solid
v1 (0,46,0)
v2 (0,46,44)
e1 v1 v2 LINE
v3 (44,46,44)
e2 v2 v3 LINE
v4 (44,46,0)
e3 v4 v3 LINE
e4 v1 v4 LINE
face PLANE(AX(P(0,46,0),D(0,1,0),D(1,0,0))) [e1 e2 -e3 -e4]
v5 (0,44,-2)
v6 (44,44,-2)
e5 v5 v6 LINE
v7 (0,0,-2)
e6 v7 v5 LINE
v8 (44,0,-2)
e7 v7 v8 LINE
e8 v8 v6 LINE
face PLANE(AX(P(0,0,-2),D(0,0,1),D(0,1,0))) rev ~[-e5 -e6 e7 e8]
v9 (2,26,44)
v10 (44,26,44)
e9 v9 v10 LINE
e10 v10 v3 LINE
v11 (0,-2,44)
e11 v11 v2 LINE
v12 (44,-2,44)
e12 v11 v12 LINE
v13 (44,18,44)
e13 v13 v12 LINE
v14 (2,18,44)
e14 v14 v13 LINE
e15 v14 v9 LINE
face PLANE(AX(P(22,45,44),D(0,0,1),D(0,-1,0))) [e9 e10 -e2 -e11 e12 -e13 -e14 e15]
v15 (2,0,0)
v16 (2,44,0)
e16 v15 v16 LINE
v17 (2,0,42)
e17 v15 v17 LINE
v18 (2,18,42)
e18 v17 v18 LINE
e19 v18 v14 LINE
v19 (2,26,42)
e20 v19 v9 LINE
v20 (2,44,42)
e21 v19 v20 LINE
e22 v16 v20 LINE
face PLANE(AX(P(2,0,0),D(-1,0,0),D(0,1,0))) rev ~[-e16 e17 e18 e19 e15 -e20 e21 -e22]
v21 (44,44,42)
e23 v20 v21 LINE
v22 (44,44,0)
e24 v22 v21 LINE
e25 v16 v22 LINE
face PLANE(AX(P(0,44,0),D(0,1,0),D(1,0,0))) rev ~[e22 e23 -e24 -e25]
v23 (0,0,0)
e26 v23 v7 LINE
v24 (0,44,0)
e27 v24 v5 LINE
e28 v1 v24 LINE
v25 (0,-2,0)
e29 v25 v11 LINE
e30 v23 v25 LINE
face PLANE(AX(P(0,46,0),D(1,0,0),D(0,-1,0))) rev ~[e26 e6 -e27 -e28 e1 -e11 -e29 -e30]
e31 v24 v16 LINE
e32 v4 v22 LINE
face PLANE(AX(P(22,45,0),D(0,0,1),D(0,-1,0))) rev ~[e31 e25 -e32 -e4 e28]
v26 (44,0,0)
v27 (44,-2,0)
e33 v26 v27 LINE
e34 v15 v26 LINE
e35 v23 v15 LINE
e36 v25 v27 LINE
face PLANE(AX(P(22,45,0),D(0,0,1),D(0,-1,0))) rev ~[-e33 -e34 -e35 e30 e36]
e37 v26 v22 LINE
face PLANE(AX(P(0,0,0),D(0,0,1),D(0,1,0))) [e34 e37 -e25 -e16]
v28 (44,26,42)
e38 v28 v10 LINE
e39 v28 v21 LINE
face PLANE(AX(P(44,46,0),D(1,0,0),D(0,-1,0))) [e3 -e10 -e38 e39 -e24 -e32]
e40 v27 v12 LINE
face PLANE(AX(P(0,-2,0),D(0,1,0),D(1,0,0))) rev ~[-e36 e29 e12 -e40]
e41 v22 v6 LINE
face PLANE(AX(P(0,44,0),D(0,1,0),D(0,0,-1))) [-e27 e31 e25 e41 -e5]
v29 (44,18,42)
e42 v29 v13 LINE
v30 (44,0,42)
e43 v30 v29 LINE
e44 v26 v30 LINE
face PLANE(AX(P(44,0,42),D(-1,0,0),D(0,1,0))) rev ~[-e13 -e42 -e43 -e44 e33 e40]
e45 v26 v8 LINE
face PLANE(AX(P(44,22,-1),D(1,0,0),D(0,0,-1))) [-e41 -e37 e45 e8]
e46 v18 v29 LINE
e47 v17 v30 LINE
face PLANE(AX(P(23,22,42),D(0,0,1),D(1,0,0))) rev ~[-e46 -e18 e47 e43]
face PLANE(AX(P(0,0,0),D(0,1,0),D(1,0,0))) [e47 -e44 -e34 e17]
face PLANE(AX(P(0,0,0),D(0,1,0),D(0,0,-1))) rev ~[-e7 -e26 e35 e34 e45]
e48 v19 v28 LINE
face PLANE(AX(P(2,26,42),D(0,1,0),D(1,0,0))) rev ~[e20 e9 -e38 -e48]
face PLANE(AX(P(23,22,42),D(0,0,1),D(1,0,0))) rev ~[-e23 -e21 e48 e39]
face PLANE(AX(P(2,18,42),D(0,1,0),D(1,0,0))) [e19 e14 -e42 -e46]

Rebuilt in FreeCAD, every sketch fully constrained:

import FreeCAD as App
import Part
import Sketcher
Q = App.Units.Quantity

doc = App.newDocument("Part")
body = doc.addObject("PartDesign::Body", "Body")

# Sketch on XY plane
sketch1 = body.newObject("Sketcher::SketchObject", "Sketch")
sketch1.AttachmentSupport = (doc.getObject("XY_Plane"), [""])
sketch1.MapMode = "FlatFace"
sketch1.AttachmentOffset = App.Placement(App.Vector(0, 0, 42), App.Rotation())
sketch1.addGeometry(Part.LineSegment(App.Vector(2, 26, 0), App.Vector(2, 18, 0)), False)
sketch1.addGeometry(Part.LineSegment(App.Vector(2, 18, 0), App.Vector(44, 18, 0)), False)
sketch1.addGeometry(Part.LineSegment(App.Vector(44, 18, 0), App.Vector(44, 26, 0)), False)
sketch1.addGeometry(Part.LineSegment(App.Vector(44, 26, 0), App.Vector(2, 26, 0)), False)
sketch1.addConstraint(Sketcher.Constraint("Coincident", 0, 2, 1, 1))
sketch1.addConstraint(Sketcher.Constraint("Coincident", 1, 2, 2, 1))
sketch1.addConstraint(Sketcher.Constraint("Coincident", 2, 2, 3, 1))
sketch1.addConstraint(Sketcher.Constraint("Coincident", 3, 2, 0, 1))
sketch1.addConstraint(Sketcher.Constraint("Vertical", 0))
sketch1.addConstraint(Sketcher.Constraint("Horizontal", 1))
sketch1.addConstraint(Sketcher.Constraint("Vertical", 2))
sketch1.addConstraint(Sketcher.Constraint("Horizontal", 3))
sketch1.addConstraint(Sketcher.Constraint("DistanceX", 1, 1, 1, 2, Q("42 mm")))
sketch1.addConstraint(Sketcher.Constraint("DistanceY", 0, 2, 0, 1, Q("8 mm")))
sketch1.addConstraint(Sketcher.Constraint("DistanceX", -1, 1, 0, 2, Q("2 mm")))
sketch1.addConstraint(Sketcher.Constraint("DistanceY", -1, 1, 0, 2, Q("18 mm")))
pad1 = body.newObject("PartDesign::Pad", "Pad")
pad1.Profile = sketch1
pad1.Length = 2
body2 = doc.addObject("PartDesign::Body", "Body001")
body2.AllowCompound = True

# Sketch on XY plane
sketch2 = body2.newObject("Sketcher::SketchObject", "Sketch001")
sketch2.AttachmentSupport = (doc.getObject("XY_Plane001"), [""])
sketch2.MapMode = "FlatFace"
sketch2.AttachmentOffset = App.Placement(App.Vector(0, 0, 42), App.Rotation())
sketch2.addGeometry(Part.LineSegment(App.Vector(2, 44, 0), App.Vector(2, 0, 0)), False)
sketch2.addGeometry(Part.LineSegment(App.Vector(2, 0, 0), App.Vector(44, 0, 0)), False)
sketch2.addGeometry(Part.LineSegment(App.Vector(44, 0, 0), App.Vector(44, 44, 0)), False)
sketch2.addGeometry(Part.LineSegment(App.Vector(44, 44, 0), App.Vector(2, 44, 0)), False)
sketch2.addConstraint(Sketcher.Constraint("Coincident", 0, 2, 1, 1))
sketch2.addConstraint(Sketcher.Constraint("Coincident", 1, 2, 2, 1))
sketch2.addConstraint(Sketcher.Constraint("Coincident", 2, 2, 3, 1))
sketch2.addConstraint(Sketcher.Constraint("Coincident", 3, 2, 0, 1))
sketch2.addConstraint(Sketcher.Constraint("Vertical", 0))
sketch2.addConstraint(Sketcher.Constraint("Horizontal", 1))
sketch2.addConstraint(Sketcher.Constraint("Vertical", 2))
sketch2.addConstraint(Sketcher.Constraint("Horizontal", 3))
sketch2.addConstraint(Sketcher.Constraint("PointOnObject", 0, 2, -1))
sketch2.addConstraint(Sketcher.Constraint("DistanceX", 1, 1, 1, 2, Q("42 mm")))
sketch2.addConstraint(Sketcher.Constraint("DistanceY", 0, 2, 0, 1, Q("44 mm")))
sketch2.addConstraint(Sketcher.Constraint("DistanceX", -1, 1, 0, 2, Q("2 mm")))
pad2 = body2.newObject("PartDesign::Pad", "Pad001")
pad2.Profile = sketch2
pad2.Length = 2
doc.recompute()

boolean = body2.newObject("PartDesign::Boolean", "Boolean")
boolean.Type = "Cut"
boolean.addObjects([body])
body3 = doc.addObject("PartDesign::Body", "Body002")

# Sketch on XY plane
sketch3 = body3.newObject("Sketcher::SketchObject", "Sketch002")
sketch3.AttachmentSupport = (doc.getObject("XY_Plane002"), [""])
sketch3.MapMode = "FlatFace"
sketch3.addGeometry(Part.LineSegment(App.Vector(44, 0, 0), App.Vector(0, 0, 0)), False)
sketch3.addGeometry(Part.LineSegment(App.Vector(0, 0, 0), App.Vector(0, -2, 0)), False)
sketch3.addGeometry(Part.LineSegment(App.Vector(0, -2, 0), App.Vector(44, -2, 0)), False)
sketch3.addGeometry(Part.LineSegment(App.Vector(44, -2, 0), App.Vector(44, 0, 0)), False)
sketch3.addConstraint(Sketcher.Constraint("Coincident", 0, 2, 1, 1))
sketch3.addConstraint(Sketcher.Constraint("Coincident", 1, 2, 2, 1))
sketch3.addConstraint(Sketcher.Constraint("Coincident", 2, 2, 3, 1))
sketch3.addConstraint(Sketcher.Constraint("Coincident", 3, 2, 0, 1))
sketch3.addConstraint(Sketcher.Constraint("Horizontal", 0))
sketch3.addConstraint(Sketcher.Constraint("Vertical", 1))
sketch3.addConstraint(Sketcher.Constraint("Horizontal", 2))
sketch3.addConstraint(Sketcher.Constraint("Vertical", 3))
sketch3.addConstraint(Sketcher.Constraint("Coincident", 0, 2, -1, 1))
sketch3.addConstraint(Sketcher.Constraint("DistanceX", 0, 2, 0, 1, Q("44 mm")))
sketch3.addConstraint(Sketcher.Constraint("DistanceY", 1, 2, 1, 1, Q("2 mm")))
pad3 = body3.newObject("PartDesign::Pad", "Pad002")
pad3.Profile = sketch3
pad3.Length = 44
body4 = doc.addObject("PartDesign::Body", "Body003")

# Sketch on XY plane
sketch4 = body4.newObject("Sketcher::SketchObject", "Sketch003")
sketch4.AttachmentSupport = (doc.getObject("XY_Plane003"), [""])
sketch4.MapMode = "FlatFace"
sketch4.addGeometry(Part.LineSegment(App.Vector(44, 46, 0), App.Vector(0, 46, 0)), False)
sketch4.addGeometry(Part.LineSegment(App.Vector(0, 46, 0), App.Vector(0, 44, 0)), False)
sketch4.addGeometry(Part.LineSegment(App.Vector(0, 44, 0), App.Vector(44, 44, 0)), False)
sketch4.addGeometry(Part.LineSegment(App.Vector(44, 44, 0), App.Vector(44, 46, 0)), False)
sketch4.addConstraint(Sketcher.Constraint("Coincident", 0, 2, 1, 1))
sketch4.addConstraint(Sketcher.Constraint("Coincident", 1, 2, 2, 1))
sketch4.addConstraint(Sketcher.Constraint("Coincident", 2, 2, 3, 1))
sketch4.addConstraint(Sketcher.Constraint("Coincident", 3, 2, 0, 1))
sketch4.addConstraint(Sketcher.Constraint("Horizontal", 0))
sketch4.addConstraint(Sketcher.Constraint("Vertical", 1))
sketch4.addConstraint(Sketcher.Constraint("Horizontal", 2))
sketch4.addConstraint(Sketcher.Constraint("Vertical", 3))
sketch4.addConstraint(Sketcher.Constraint("PointOnObject", 0, 2, -2))
sketch4.addConstraint(Sketcher.Constraint("DistanceX", 0, 2, 0, 1, Q("44 mm")))
sketch4.addConstraint(Sketcher.Constraint("DistanceY", 1, 2, 1, 1, Q("2 mm")))
sketch4.addConstraint(Sketcher.Constraint("DistanceY", -1, 1, 0, 2, Q("46 mm")))
pad4 = body4.newObject("PartDesign::Pad", "Pad003")
pad4.Profile = sketch4
pad4.Length = 44
body5 = doc.addObject("PartDesign::Body", "Body004")

# Sketch on YZ plane
sketch5 = body5.newObject("Sketcher::SketchObject", "Sketch004")
sketch5.AttachmentSupport = (doc.getObject("YZ_Plane004"), [""])
sketch5.MapMode = "FlatFace"
sketch5.addGeometry(Part.LineSegment(App.Vector(44, 0, 0), App.Vector(0, 0, 0)), False)
sketch5.addGeometry(Part.LineSegment(App.Vector(0, 0, 0), App.Vector(0, -2, 0)), False)
sketch5.addGeometry(Part.LineSegment(App.Vector(0, -2, 0), App.Vector(44, -2, 0)), False)
sketch5.addGeometry(Part.LineSegment(App.Vector(44, -2, 0), App.Vector(44, 0, 0)), False)
sketch5.addConstraint(Sketcher.Constraint("Coincident", 0, 2, 1, 1))
sketch5.addConstraint(Sketcher.Constraint("Coincident", 1, 2, 2, 1))
sketch5.addConstraint(Sketcher.Constraint("Coincident", 2, 2, 3, 1))
sketch5.addConstraint(Sketcher.Constraint("Coincident", 3, 2, 0, 1))
sketch5.addConstraint(Sketcher.Constraint("Horizontal", 0))
sketch5.addConstraint(Sketcher.Constraint("Vertical", 1))
sketch5.addConstraint(Sketcher.Constraint("Horizontal", 2))
sketch5.addConstraint(Sketcher.Constraint("Vertical", 3))
sketch5.addConstraint(Sketcher.Constraint("Coincident", 0, 2, -1, 1))
sketch5.addConstraint(Sketcher.Constraint("DistanceX", 0, 2, 0, 1, Q("44 mm")))
sketch5.addConstraint(Sketcher.Constraint("DistanceY", 1, 2, 1, 1, Q("2 mm")))
pad5 = body5.newObject("PartDesign::Pad", "Pad004")
pad5.Profile = sketch5
pad5.Length = 44
body6 = doc.addObject("PartDesign::Body", "Body005")

# Sketch on XY plane
sketch6 = body6.newObject("Sketcher::SketchObject", "Sketch005")
sketch6.AttachmentSupport = (doc.getObject("XY_Plane005"), [""])
sketch6.MapMode = "FlatFace"
sketch6.addGeometry(Part.LineSegment(App.Vector(0, 44, 0), App.Vector(0, 0, 0)), False)
sketch6.addGeometry(Part.LineSegment(App.Vector(0, 0, 0), App.Vector(2, 0, 0)), False)
sketch6.addGeometry(Part.LineSegment(App.Vector(2, 0, 0), App.Vector(2, 44, 0)), False)
sketch6.addGeometry(Part.LineSegment(App.Vector(2, 44, 0), App.Vector(0, 44, 0)), False)
sketch6.addConstraint(Sketcher.Constraint("Coincident", 0, 2, 1, 1))
sketch6.addConstraint(Sketcher.Constraint("Coincident", 1, 2, 2, 1))
sketch6.addConstraint(Sketcher.Constraint("Coincident", 2, 2, 3, 1))
sketch6.addConstraint(Sketcher.Constraint("Coincident", 3, 2, 0, 1))
sketch6.addConstraint(Sketcher.Constraint("Vertical", 0))
sketch6.addConstraint(Sketcher.Constraint("Horizontal", 1))
sketch6.addConstraint(Sketcher.Constraint("Vertical", 2))
sketch6.addConstraint(Sketcher.Constraint("Horizontal", 3))
sketch6.addConstraint(Sketcher.Constraint("Coincident", 0, 2, -1, 1))
sketch6.addConstraint(Sketcher.Constraint("DistanceX", 1, 1, 1, 2, Q("2 mm")))
sketch6.addConstraint(Sketcher.Constraint("DistanceY", 0, 2, 0, 1, Q("44 mm")))
pad6 = body6.newObject("PartDesign::Pad", "Pad005")
pad6.Profile = sketch6
pad6.Length = 44
doc.recompute()

boolean2 = body6.newObject("PartDesign::Boolean", "Boolean001")
boolean2.Type = "Fuse"
boolean2.addObjects([body3])
doc.recompute()

boolean3 = body6.newObject("PartDesign::Boolean", "Boolean002")
boolean3.Type = "Fuse"
boolean3.addObjects([body4])
doc.recompute()

boolean4 = body6.newObject("PartDesign::Boolean", "Boolean003")
boolean4.Type = "Fuse"
boolean4.addObjects([body5])
doc.recompute()

boolean5 = body6.newObject("PartDesign::Boolean", "Boolean004")
boolean5.Type = "Fuse"
boolean5.addObjects([body2])

doc.recompute()
